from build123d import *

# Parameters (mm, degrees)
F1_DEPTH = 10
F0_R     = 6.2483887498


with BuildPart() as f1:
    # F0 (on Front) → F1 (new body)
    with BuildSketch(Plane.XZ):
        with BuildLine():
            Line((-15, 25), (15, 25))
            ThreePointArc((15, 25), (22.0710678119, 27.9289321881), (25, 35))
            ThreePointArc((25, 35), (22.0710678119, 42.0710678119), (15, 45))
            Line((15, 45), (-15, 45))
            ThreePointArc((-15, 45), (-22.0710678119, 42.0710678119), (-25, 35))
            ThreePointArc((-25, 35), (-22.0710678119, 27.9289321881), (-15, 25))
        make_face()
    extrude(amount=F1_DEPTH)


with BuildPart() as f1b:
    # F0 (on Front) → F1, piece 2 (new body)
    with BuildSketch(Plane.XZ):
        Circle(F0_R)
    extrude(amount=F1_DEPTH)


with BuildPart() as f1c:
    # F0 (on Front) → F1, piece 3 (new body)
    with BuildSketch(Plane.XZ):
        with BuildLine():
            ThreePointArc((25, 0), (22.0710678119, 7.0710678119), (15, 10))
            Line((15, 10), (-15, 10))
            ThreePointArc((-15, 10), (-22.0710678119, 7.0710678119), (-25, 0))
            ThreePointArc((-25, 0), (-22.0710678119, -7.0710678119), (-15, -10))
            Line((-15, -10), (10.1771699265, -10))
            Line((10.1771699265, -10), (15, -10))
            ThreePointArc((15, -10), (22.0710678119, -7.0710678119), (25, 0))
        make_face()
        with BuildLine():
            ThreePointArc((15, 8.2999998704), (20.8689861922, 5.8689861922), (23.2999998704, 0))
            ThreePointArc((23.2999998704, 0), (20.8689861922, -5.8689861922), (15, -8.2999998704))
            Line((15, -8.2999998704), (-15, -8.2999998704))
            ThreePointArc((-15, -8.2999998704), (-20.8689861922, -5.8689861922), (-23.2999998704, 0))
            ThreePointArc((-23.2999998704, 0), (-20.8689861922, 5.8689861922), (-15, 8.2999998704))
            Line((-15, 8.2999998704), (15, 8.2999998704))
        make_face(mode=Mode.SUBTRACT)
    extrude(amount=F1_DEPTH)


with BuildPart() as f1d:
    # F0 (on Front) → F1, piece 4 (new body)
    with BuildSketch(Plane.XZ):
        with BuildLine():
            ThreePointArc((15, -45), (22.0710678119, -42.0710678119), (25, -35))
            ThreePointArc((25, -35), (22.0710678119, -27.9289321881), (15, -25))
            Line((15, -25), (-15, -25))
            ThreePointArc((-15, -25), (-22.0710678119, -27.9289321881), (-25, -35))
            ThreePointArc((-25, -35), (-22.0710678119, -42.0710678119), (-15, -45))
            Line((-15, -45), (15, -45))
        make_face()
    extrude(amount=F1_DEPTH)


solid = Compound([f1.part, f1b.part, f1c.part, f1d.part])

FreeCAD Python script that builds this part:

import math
import FreeCAD as App
import Part
import Sketcher

V = App.Vector

doc = App.newDocument("Part")
body = doc.addObject("PartDesign::Body", "Body")

# Sketch on XZ plane
sketch1 = body.newObject("Sketcher::SketchObject", "Sketch")
sketch1.AttachmentSupport = (doc.getObject("XZ_Plane"), [""])
sketch1.MapMode = "FlatFace"
sketch1.addGeometry([
    Part.LineSegment(V(-15, 25, 0), V(15, 25, 0)),  # 0
    Part.ArcOfCircle(Part.Circle(V(15, 35, 0), V(0, 0, 1), 10), math.radians(-90), math.radians(0)),  # 1
    Part.ArcOfCircle(Part.Circle(V(15, 35, 0), V(0, 0, 1), 10), math.radians(0), math.radians(90)),  # 2
    Part.LineSegment(V(15, 45, 0), V(-15, 45, 0)),  # 3
    Part.ArcOfCircle(Part.Circle(V(-15, 35, 0), V(0, 0, 1), 10), math.radians(90), math.radians(180)),  # 4
    Part.ArcOfCircle(Part.Circle(V(-15, 35, 0), V(0, 0, 1), 10), math.radians(180), math.radians(270)),  # 5
], False)
sketch1.addConstraint([
    Sketcher.Constraint("Tangent", 0, 2, 1, 1),
    Sketcher.Constraint("Tangent", 1, 2, 2, 1),
    Sketcher.Constraint("Tangent", 2, 2, 3, 1),
    Sketcher.Constraint("Tangent", 3, 2, 4, 1),
    Sketcher.Constraint("Tangent", 4, 2, 5, 1),
    Sketcher.Constraint("Tangent", 5, 2, 0, 1),
    Sketcher.Constraint("Horizontal", 0),
    Sketcher.Constraint("Horizontal", 3),
    Sketcher.Constraint("Equal", 1, 2),
    Sketcher.Constraint("Equal", 2, 4),
    Sketcher.Constraint("Symmetric", 1, 2, 4, 2, -2),
    Sketcher.Constraint("Horizontal", 5, 3, 1, 2),
    Sketcher.Constraint("Radius", 1, 10.0),
    Sketcher.Constraint("DistanceX", 0, 1, 0, 2, 30.0),
    Sketcher.Constraint("DistanceY", -1, 1, 1, 3, 35.0),
])
pad1 = body.newObject("PartDesign::Pad", "Pad")
pad1.Profile = sketch1
pad1.Length = 10
body2 = doc.addObject("PartDesign::Body", "Body001")

# Sketch on XZ plane
sketch2 = body2.newObject("Sketcher::SketchObject", "Sketch001")
sketch2.AttachmentSupport = (doc.getObject("XZ_Plane001"), [""])
sketch2.MapMode = "FlatFace"
sketch2.addGeometry(Part.Circle(V(0, 0, 0), V(0, 0, 1), 6), False)
sketch2.addConstraint([
    Sketcher.Constraint("Coincident", 0, 3, -1, 1),
    Sketcher.Constraint("Diameter", 0, 12.496778),
])
pad2 = body2.newObject("PartDesign::Pad", "Pad001")
pad2.Profile = sketch2
pad2.Length = 10
body3 = doc.addObject("PartDesign::Body", "Body002")

# Sketch on XZ plane
sketch3 = body3.newObject("Sketcher::SketchObject", "Sketch002")
sketch3.AttachmentSupport = (doc.getObject("XZ_Plane002"), [""])
sketch3.MapMode = "FlatFace"
sketch3.addGeometry([
    Part.ArcOfCircle(Part.Circle(V(15, 0, 0), V(0, 0, 1), 10), math.radians(0), math.radians(90)),  # 0
    Part.LineSegment(V(15, 10, 0), V(-15, 10, 0)),  # 1
    Part.ArcOfCircle(Part.Circle(V(-15, 0, 0), V(0, 0, 1), 10), math.radians(90), math.radians(180)),  # 2
    Part.ArcOfCircle(Part.Circle(V(-15, 0, 0), V(0, 0, 1), 10), math.radians(180), math.radians(270)),  # 3
    Part.LineSegment(V(-15, -10, 0), V(15, -10, 0)),  # 4
    Part.ArcOfCircle(Part.Circle(V(15, 0, 0), V(0, 0, 1), 10), math.radians(-90), math.radians(0)),  # 5
    Part.LineSegment(V(-15, 8, 0), V(15, 8, 0)),  # 6
    Part.ArcOfCircle(Part.Circle(V(15, 0, 0), V(0, 0, 1), 8), math.radians(0), math.radians(90)),  # 7
    Part.ArcOfCircle(Part.Circle(V(15, 0, 0), V(0, 0, 1), 8), math.radians(-90), math.radians(0)),  # 8
    Part.LineSegment(V(15, -8, 0), V(-15, -8, 0)),  # 9
    Part.ArcOfCircle(Part.Circle(V(-15, 0, 0), V(0, 0, 1), 8), math.radians(180), math.radians(270)),  # 10
    Part.ArcOfCircle(Part.Circle(V(-15, 0, 0), V(0, 0, 1), 8), math.radians(90), math.radians(180)),  # 11
], False)
sketch3.addConstraint([
    Sketcher.Constraint("Tangent", 0, 2, 1, 1),
    Sketcher.Constraint("Tangent", 1, 2, 2, 1),
    Sketcher.Constraint("Tangent", 2, 2, 3, 1),
    Sketcher.Constraint("Tangent", 3, 2, 4, 1),
    Sketcher.Constraint("Tangent", 4, 2, 5, 1),
    Sketcher.Constraint("Tangent", 5, 2, 0, 1),
    Sketcher.Constraint("Tangent", 6, 2, 7, 2),
    Sketcher.Constraint("Tangent", 7, 1, 8, 2),
    Sketcher.Constraint("Tangent", 8, 1, 9, 1),
    Sketcher.Constraint("Tangent", 9, 2, 10, 2),
    Sketcher.Constraint("Tangent", 10, 1, 11, 2),
    Sketcher.Constraint("Tangent", 11, 1, 6, 1),
    Sketcher.Constraint("Horizontal", 1),
    Sketcher.Constraint("Horizontal", 4),
    Sketcher.Constraint("Horizontal", 6),
    Sketcher.Constraint("Horizontal", 9),
    Sketcher.Constraint("Coincident", 7, 3, 0, 3),
    Sketcher.Constraint("Coincident", 10, 3, 2, 3),
    Sketcher.Constraint("Equal", 0, 2),
    Sketcher.Constraint("Equal", 2, 3),
    Sketcher.Constraint("Equal", 7, 8),
    Sketcher.Constraint("Symmetric", 0, 3, 2, 3, -1, 1),
    Sketcher.Constraint("PointOnObject", 2, 2, -1),
    Sketcher.Constraint("PointOnObject", 5, 2, -1),
    Sketcher.Constraint("PointOnObject", 7, 1, -1),
    Sketcher.Constraint("PointOnObject", 10, 1, -1),
    Sketcher.Constraint("Radius", 0, 10.0),
    Sketcher.Constraint("Radius", 7, 8.3),
    Sketcher.Constraint("DistanceX", 1, 2, 1, 1, 30.0),
])
pad3 = body3.newObject("PartDesign::Pad", "Pad002")
pad3.Profile = sketch3
pad3.Length = 10
body4 = doc.addObject("PartDesign::Body", "Body003")

# Sketch on XZ plane
sketch4 = body4.newObject("Sketcher::SketchObject", "Sketch003")
sketch4.AttachmentSupport = (doc.getObject("XZ_Plane003"), [""])
sketch4.MapMode = "FlatFace"
sketch4.addGeometry([
    Part.ArcOfCircle(Part.Circle(V(15, -35, 0), V(0, 0, 1), 10), math.radians(-90), math.radians(0)),  # 0
    Part.ArcOfCircle(Part.Circle(V(15, -35, 0), V(0, 0, 1), 10), math.radians(0), math.radians(90)),  # 1
    Part.LineSegment(V(15, -25, 0), V(-15, -25, 0)),  # 2
    Part.ArcOfCircle(Part.Circle(V(-15, -35, 0), V(0, 0, 1), 10), math.radians(90), math.radians(180)),  # 3
    Part.ArcOfCircle(Part.Circle(V(-15, -35, 0), V(0, 0, 1), 10), math.radians(180), math.radians(270)),  # 4
    Part.LineSegment(V(-15, -45, 0), V(15, -45, 0)),  # 5
], False)
sketch4.addConstraint([
    Sketcher.Constraint("Tangent", 0, 2, 1, 1),
    Sketcher.Constraint("Tangent", 1, 2, 2, 1),
    Sketcher.Constraint("Tangent", 2, 2, 3, 1),
    Sketcher.Constraint("Tangent", 3, 2, 4, 1),
    Sketcher.Constraint("Tangent", 4, 2, 5, 1),
    Sketcher.Constraint("Tangent", 5, 2, 0, 1),
    Sketcher.Constraint("Horizontal", 2),
    Sketcher.Constraint("Horizontal", 5),
    Sketcher.Constraint("Equal", 0, 1),
    Sketcher.Constraint("Equal", 1, 3),
    Sketcher.Constraint("Symmetric", 0, 2, 3, 2, -2),
    Sketcher.Constraint("Horizontal", 4, 3, 0, 2),
    Sketcher.Constraint("Radius", 0, 10.0),
    Sketcher.Constraint("DistanceX", 2, 2, 2, 1, 30.0),
    Sketcher.Constraint("DistanceY", 0, 3, -1, 1, 35.0),
])
pad4 = body4.newObject("PartDesign::Pad", "Pad003")
pad4.Profile = sketch4
pad4.Length = 10

doc.recompute()
